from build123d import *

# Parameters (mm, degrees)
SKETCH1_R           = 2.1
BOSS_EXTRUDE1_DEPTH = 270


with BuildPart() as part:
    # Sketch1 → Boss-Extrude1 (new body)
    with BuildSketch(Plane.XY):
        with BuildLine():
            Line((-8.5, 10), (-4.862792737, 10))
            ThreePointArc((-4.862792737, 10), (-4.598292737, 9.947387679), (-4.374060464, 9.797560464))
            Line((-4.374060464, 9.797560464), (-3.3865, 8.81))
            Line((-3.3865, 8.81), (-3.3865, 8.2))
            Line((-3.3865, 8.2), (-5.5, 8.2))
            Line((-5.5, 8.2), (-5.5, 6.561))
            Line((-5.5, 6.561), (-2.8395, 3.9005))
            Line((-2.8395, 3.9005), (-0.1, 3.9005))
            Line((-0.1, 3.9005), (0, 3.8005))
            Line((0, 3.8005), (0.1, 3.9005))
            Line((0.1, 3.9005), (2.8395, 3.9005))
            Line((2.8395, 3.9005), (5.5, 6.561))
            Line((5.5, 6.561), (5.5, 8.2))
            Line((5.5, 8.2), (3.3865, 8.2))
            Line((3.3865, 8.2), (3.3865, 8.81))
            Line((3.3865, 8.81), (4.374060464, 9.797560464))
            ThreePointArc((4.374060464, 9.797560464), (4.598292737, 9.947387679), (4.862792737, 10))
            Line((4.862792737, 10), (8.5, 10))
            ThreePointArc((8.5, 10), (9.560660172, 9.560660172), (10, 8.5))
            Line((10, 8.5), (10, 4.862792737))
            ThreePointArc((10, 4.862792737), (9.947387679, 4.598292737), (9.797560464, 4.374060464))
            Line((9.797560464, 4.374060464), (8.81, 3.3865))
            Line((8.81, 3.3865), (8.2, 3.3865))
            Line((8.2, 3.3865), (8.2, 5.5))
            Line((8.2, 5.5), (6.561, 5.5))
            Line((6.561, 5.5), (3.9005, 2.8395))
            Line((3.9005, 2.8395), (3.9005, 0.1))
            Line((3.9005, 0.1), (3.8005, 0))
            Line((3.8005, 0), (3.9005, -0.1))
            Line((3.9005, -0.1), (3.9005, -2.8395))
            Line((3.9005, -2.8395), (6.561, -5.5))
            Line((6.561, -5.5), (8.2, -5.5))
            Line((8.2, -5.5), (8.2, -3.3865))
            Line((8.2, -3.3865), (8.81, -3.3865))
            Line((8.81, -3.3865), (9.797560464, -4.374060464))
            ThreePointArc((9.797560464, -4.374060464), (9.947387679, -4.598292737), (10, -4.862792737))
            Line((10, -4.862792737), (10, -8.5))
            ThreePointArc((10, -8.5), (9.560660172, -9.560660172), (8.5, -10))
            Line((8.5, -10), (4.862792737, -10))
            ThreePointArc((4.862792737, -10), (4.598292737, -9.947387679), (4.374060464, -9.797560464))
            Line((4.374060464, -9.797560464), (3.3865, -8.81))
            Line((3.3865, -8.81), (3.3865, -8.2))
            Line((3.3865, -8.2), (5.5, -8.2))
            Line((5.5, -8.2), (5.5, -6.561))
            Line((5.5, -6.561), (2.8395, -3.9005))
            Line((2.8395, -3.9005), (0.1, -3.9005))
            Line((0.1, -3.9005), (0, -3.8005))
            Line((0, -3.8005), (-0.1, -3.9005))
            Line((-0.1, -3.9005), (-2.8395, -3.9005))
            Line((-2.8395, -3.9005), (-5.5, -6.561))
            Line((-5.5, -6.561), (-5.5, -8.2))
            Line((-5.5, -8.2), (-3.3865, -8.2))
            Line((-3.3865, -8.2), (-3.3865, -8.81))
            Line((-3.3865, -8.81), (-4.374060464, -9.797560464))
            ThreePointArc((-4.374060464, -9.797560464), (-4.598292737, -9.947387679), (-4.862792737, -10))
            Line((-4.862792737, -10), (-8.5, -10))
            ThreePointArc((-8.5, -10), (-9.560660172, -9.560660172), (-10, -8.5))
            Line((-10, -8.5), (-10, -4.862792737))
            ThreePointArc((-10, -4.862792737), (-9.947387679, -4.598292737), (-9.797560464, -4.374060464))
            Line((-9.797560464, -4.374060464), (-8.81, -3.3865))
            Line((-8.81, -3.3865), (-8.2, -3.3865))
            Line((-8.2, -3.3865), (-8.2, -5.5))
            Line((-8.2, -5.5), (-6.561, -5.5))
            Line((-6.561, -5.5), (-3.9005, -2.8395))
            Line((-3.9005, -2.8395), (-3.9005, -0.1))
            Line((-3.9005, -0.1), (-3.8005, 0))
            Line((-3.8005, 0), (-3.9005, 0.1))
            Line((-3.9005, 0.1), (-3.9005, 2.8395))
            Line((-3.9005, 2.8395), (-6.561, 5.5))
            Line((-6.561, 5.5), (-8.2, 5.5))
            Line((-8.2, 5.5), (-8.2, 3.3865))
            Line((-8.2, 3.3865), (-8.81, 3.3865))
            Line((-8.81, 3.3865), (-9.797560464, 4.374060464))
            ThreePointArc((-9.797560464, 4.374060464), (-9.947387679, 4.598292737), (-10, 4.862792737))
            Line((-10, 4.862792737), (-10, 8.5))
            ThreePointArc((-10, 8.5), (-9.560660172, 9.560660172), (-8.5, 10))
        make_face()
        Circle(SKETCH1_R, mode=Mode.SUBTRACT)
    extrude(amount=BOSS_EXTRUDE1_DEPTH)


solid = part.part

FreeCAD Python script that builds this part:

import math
import FreeCAD as App
import Part
import Sketcher
from FreeCAD import Vector

doc = App.newDocument("Part")
params = doc.addObject("Spreadsheet::Sheet", "Params")
for row, (alias, value) in enumerate([
    ("sketch1_diameter", "4.2 mm"),
    ("sketch1_radius", "1.5 mm"),
    ("sketch1_width", "0.61 mm"),
    ("pad1_length", "270 mm"),
], start=1):
    params.set(f"A{row}", alias)
    params.set(f"B{row}", "=" + value)
    params.setAlias(f"B{row}", alias)

body = doc.addObject("PartDesign::Body", "Body")

# Sketch on XY plane
sketch1 = doc.addObject("Sketcher::SketchObject", "Sketch")
body.addObject(sketch1)
sketch1.AttachmentSupport = (doc.XY_Plane, [""])
sketch1.MapMode = "FlatFace"
sketch1.addGeometry([
    Part.LineSegment(Vector(-4.86, 10, 0), Vector(-8.5, 10, 0)),  # 0
    Part.ArcOfCircle(Part.Circle(Vector(-8.5, 8.5, 0), Vector(0, 0, 1), 1.5), math.radians(90), math.radians(180)),  # 1
    Part.LineSegment(Vector(-10, 8.5, 0), Vector(-10, 4.86, 0)),  # 2
    Part.ArcOfCircle(Part.Circle(Vector(-9.31, 4.86, 0), Vector(0, 0, 1), 0.69), math.radians(180), math.radians(225)),  # 3
    Part.LineSegment(Vector(-9.8, 4.37, 0), Vector(-8.81, 3.39, 0)),  # 4
    Part.LineSegment(Vector(-8.81, 3.39, 0), Vector(-8.2, 3.39, 0)),  # 5
    Part.LineSegment(Vector(-8.2, 3.39, 0), Vector(-8.2, 5.5, 0)),  # 6
    Part.LineSegment(Vector(-8.2, 5.5, 0), Vector(-6.56, 5.5, 0)),  # 7
    Part.LineSegment(Vector(-6.56, 5.5, 0), Vector(-3.9, 2.84, 0)),  # 8
    Part.LineSegment(Vector(-3.9, 2.84, 0), Vector(-3.9, 0.1, 0)),  # 9
    Part.LineSegment(Vector(-3.9, 0.1, 0), Vector(-3.8, 0, 0)),  # 10
    Part.LineSegment(Vector(-3.8, 0, 0), Vector(-3.9, -0.1, 0)),  # 11
    Part.LineSegment(Vector(-3.9, -0.1, 0), Vector(-3.9, -2.84, 0)),  # 12
    Part.LineSegment(Vector(-3.9, -2.84, 0), Vector(-6.56, -5.5, 0)),  # 13
    Part.LineSegment(Vector(-6.56, -5.5, 0), Vector(-8.2, -5.5, 0)),  # 14
    Part.LineSegment(Vector(-8.2, -5.5, 0), Vector(-8.2, -3.39, 0)),  # 15
    Part.LineSegment(Vector(-8.2, -3.39, 0), Vector(-8.81, -3.39, 0)),  # 16
    Part.LineSegment(Vector(-8.81, -3.39, 0), Vector(-9.8, -4.37, 0)),  # 17
    Part.ArcOfCircle(Part.Circle(Vector(-9.31, -4.86, 0), Vector(0, 0, 1), 0.69), math.radians(135), math.radians(180)),  # 18
    Part.LineSegment(Vector(-10, -4.86, 0), Vector(-10, -8.5, 0)),  # 19
    Part.ArcOfCircle(Part.Circle(Vector(-8.5, -8.5, 0), Vector(0, 0, 1), 1.5), math.radians(180), math.radians(270)),  # 20
    Part.LineSegment(Vector(-8.5, -10, 0), Vector(-4.86, -10, 0)),  # 21
    Part.ArcOfCircle(Part.Circle(Vector(-4.86, -9.31, 0), Vector(0, 0, 1), 0.69), math.radians(-90), math.radians(-45)),  # 22
    Part.LineSegment(Vector(-4.37, -9.8, 0), Vector(-3.39, -8.81, 0)),  # 23
    Part.LineSegment(Vector(-3.39, -8.81, 0), Vector(-3.39, -8.2, 0)),  # 24
    Part.LineSegment(Vector(-3.39, -8.2, 0), Vector(-5.5, -8.2, 0)),  # 25
    Part.LineSegment(Vector(-5.5, -8.2, 0), Vector(-5.5, -6.56, 0)),  # 26
    Part.LineSegment(Vector(-5.5, -6.56, 0), Vector(-2.84, -3.9, 0)),  # 27
    Part.LineSegment(Vector(-2.84, -3.9, 0), Vector(-0.1, -3.9, 0)),  # 28
    Part.LineSegment(Vector(-0.1, -3.9, 0), Vector(0, -3.8, 0)),  # 29
    Part.LineSegment(Vector(0, -3.8, 0), Vector(0.1, -3.9, 0)),  # 30
    Part.LineSegment(Vector(0.1, -3.9, 0), Vector(2.84, -3.9, 0)),  # 31
    Part.LineSegment(Vector(2.84, -3.9, 0), Vector(5.5, -6.56, 0)),  # 32
    Part.LineSegment(Vector(5.5, -6.56, 0), Vector(5.5, -8.2, 0)),  # 33
    Part.LineSegment(Vector(5.5, -8.2, 0), Vector(3.39, -8.2, 0)),  # 34
    Part.LineSegment(Vector(3.39, -8.2, 0), Vector(3.39, -8.81, 0)),  # 35
    Part.LineSegment(Vector(3.39, -8.81, 0), Vector(4.37, -9.8, 0)),  # 36
    Part.ArcOfCircle(Part.Circle(Vector(4.86, -9.31, 0), Vector(0, 0, 1), 0.69), math.radians(-135), math.radians(-90)),  # 37
    Part.LineSegment(Vector(4.86, -10, 0), Vector(8.5, -10, 0)),  # 38
    Part.ArcOfCircle(Part.Circle(Vector(8.5, -8.5, 0), Vector(0, 0, 1), 1.5), math.radians(-90), math.radians(0)),  # 39
    Part.LineSegment(Vector(10, -8.5, 0), Vector(10, -4.86, 0)),  # 40
    Part.ArcOfCircle(Part.Circle(Vector(9.31, -4.86, 0), Vector(0, 0, 1), 0.69), math.radians(0), math.radians(45)),  # 41
    Part.LineSegment(Vector(9.8, -4.37, 0), Vector(8.81, -3.39, 0)),  # 42
    Part.LineSegment(Vector(8.81, -3.39, 0), Vector(8.2, -3.39, 0)),  # 43
    Part.LineSegment(Vector(8.2, -3.39, 0), Vector(8.2, -5.5, 0)),  # 44
    Part.LineSegment(Vector(8.2, -5.5, 0), Vector(6.56, -5.5, 0)),  # 45
    Part.LineSegment(Vector(6.56, -5.5, 0), Vector(3.9, -2.84, 0)),  # 46
    Part.LineSegment(Vector(3.9, -2.84, 0), Vector(3.9, -0.1, 0)),  # 47
    Part.LineSegment(Vector(3.9, -0.1, 0), Vector(3.8, 0, 0)),  # 48
    Part.LineSegment(Vector(3.8, 0, 0), Vector(3.9, 0.1, 0)),  # 49
    Part.LineSegment(Vector(3.9, 0.1, 0), Vector(3.9, 2.84, 0)),  # 50
    Part.LineSegment(Vector(3.9, 2.84, 0), Vector(6.56, 5.5, 0)),  # 51
    Part.LineSegment(Vector(6.56, 5.5, 0), Vector(8.2, 5.5, 0)),  # 52
    Part.LineSegment(Vector(8.2, 5.5, 0), Vector(8.2, 3.39, 0)),  # 53
    Part.LineSegment(Vector(8.2, 3.39, 0), Vector(8.81, 3.39, 0)),  # 54
    Part.LineSegment(Vector(8.81, 3.39, 0), Vector(9.8, 4.37, 0)),  # 55
    Part.ArcOfCircle(Part.Circle(Vector(9.31, 4.86, 0), Vector(0, 0, 1), 0.69), math.radians(-45), math.radians(0)),  # 56
    Part.LineSegment(Vector(10, 4.86, 0), Vector(10, 8.5, 0)),  # 57
    Part.ArcOfCircle(Part.Circle(Vector(8.5, 8.5, 0), Vector(0, 0, 1), 1.5), math.radians(0), math.radians(90)),  # 58
    Part.LineSegment(Vector(8.5, 10, 0), Vector(4.86, 10, 0)),  # 59
    Part.ArcOfCircle(Part.Circle(Vector(4.86, 9.31, 0), Vector(0, 0, 1), 0.69), math.radians(90), math.radians(135)),  # 60
    Part.LineSegment(Vector(4.37, 9.8, 0), Vector(3.39, 8.81, 0)),  # 61
    Part.LineSegment(Vector(3.39, 8.81, 0), Vector(3.39, 8.2, 0)),  # 62
    Part.LineSegment(Vector(3.39, 8.2, 0), Vector(5.5, 8.2, 0)),  # 63
    Part.LineSegment(Vector(5.5, 8.2, 0), Vector(5.5, 6.56, 0)),  # 64
    Part.LineSegment(Vector(5.5, 6.56, 0), Vector(2.84, 3.9, 0)),  # 65
    Part.LineSegment(Vector(2.84, 3.9, 0), Vector(0.1, 3.9, 0)),  # 66
    Part.LineSegment(Vector(0.1, 3.9, 0), Vector(0, 3.8, 0)),  # 67
    Part.LineSegment(Vector(0, 3.8, 0), Vector(-0.1, 3.9, 0)),  # 68
    Part.LineSegment(Vector(-0.1, 3.9, 0), Vector(-2.84, 3.9, 0)),  # 69
    Part.LineSegment(Vector(-2.84, 3.9, 0), Vector(-5.5, 6.56, 0)),  # 70
    Part.LineSegment(Vector(-5.5, 6.56, 0), Vector(-5.5, 8.2, 0)),  # 71
    Part.LineSegment(Vector(-5.5, 8.2, 0), Vector(-3.39, 8.2, 0)),  # 72
    Part.LineSegment(Vector(-3.39, 8.2, 0), Vector(-3.39, 8.81, 0)),  # 73
    Part.LineSegment(Vector(-3.39, 8.81, 0), Vector(-4.37, 9.8, 0)),  # 74
    Part.ArcOfCircle(Part.Circle(Vector(-4.86, 9.31, 0), Vector(0, 0, 1), 0.69), math.radians(45), math.radians(90)),  # 75
    Part.Circle(Vector(0, 0, 0), Vector(0, 0, 1), 2.1),  # 76
], False)
sketch1.addConstraint([
    Sketcher.Constraint("Tangent", 0, 2, 1, 1),
    Sketcher.Constraint("Tangent", 1, 2, 2, 1),
    Sketcher.Constraint("Tangent", 2, 2, 3, 1),
    Sketcher.Constraint("Tangent", 3, 2, 4, 1),
    Sketcher.Constraint("Coincident", 4, 2, 5, 1),
    Sketcher.Constraint("Coincident", 5, 2, 6, 1),
    Sketcher.Constraint("Coincident", 6, 2, 7, 1),
    Sketcher.Constraint("Coincident", 7, 2, 8, 1),
    Sketcher.Constraint("Coincident", 8, 2, 9, 1),
    Sketcher.Constraint("Coincident", 9, 2, 10, 1),
    Sketcher.Constraint("Coincident", 10, 2, 11, 1),
    Sketcher.Constraint("Coincident", 11, 2, 12, 1),
    Sketcher.Constraint("Coincident", 12, 2, 13, 1),
    Sketcher.Constraint("Coincident", 13, 2, 14, 1),
    Sketcher.Constraint("Coincident", 14, 2, 15, 1),
    Sketcher.Constraint("Coincident", 15, 2, 16, 1),
    Sketcher.Constraint("Coincident", 16, 2, 17, 1),
    Sketcher.Constraint("Tangent", 17, 2, 18, 1),
    Sketcher.Constraint("Tangent", 18, 2, 19, 1),
    Sketcher.Constraint("Tangent", 19, 2, 20, 1),
    Sketcher.Constraint("Tangent", 20, 2, 21, 1),
    Sketcher.Constraint("Tangent", 21, 2, 22, 1),
    Sketcher.Constraint("Tangent", 22, 2, 23, 1),
    Sketcher.Constraint("Coincident", 23, 2, 24, 1),
    Sketcher.Constraint("Coincident", 24, 2, 25, 1),
    Sketcher.Constraint("Coincident", 25, 2, 26, 1),
    Sketcher.Constraint("Coincident", 26, 2, 27, 1),
    Sketcher.Constraint("Coincident", 27, 2, 28, 1),
    Sketcher.Constraint("Coincident", 28, 2, 29, 1),
    Sketcher.Constraint("Coincident", 29, 2, 30, 1),
    Sketcher.Constraint("Coincident", 30, 2, 31, 1),
    Sketcher.Constraint("Coincident", 31, 2, 32, 1),
    Sketcher.Constraint("Coincident", 32, 2, 33, 1),
    Sketcher.Constraint("Coincident", 33, 2, 34, 1),
    Sketcher.Constraint("Coincident", 34, 2, 35, 1),
    Sketcher.Constraint("Coincident", 35, 2, 36, 1),
    Sketcher.Constraint("Tangent", 36, 2, 37, 1),
    Sketcher.Constraint("Tangent", 37, 2, 38, 1),
    Sketcher.Constraint("Tangent", 38, 2, 39, 1),
    Sketcher.Constraint("Tangent", 39, 2, 40, 1),
    Sketcher.Constraint("Tangent", 40, 2, 41, 1),
    Sketcher.Constraint("Tangent", 41, 2, 42, 1),
    Sketcher.Constraint("Coincident", 42, 2, 43, 1),
    Sketcher.Constraint("Coincident", 43, 2, 44, 1),
    Sketcher.Constraint("Coincident", 44, 2, 45, 1),
    Sketcher.Constraint("Coincident", 45, 2, 46, 1),
    Sketcher.Constraint("Coincident", 46, 2, 47, 1),
    Sketcher.Constraint("Coincident", 47, 2, 48, 1),
    Sketcher.Constraint("Coincident", 48, 2, 49, 1),
    Sketcher.Constraint("Coincident", 49, 2, 50, 1),
    Sketcher.Constraint("Coincident", 50, 2, 51, 1),
    Sketcher.Constraint("Coincident", 51, 2, 52, 1),
    Sketcher.Constraint("Coincident", 52, 2, 53, 1),
    Sketcher.Constraint("Coincident", 53, 2, 54, 1),
    Sketcher.Constraint("Coincident", 54, 2, 55, 1),
    Sketcher.Constraint("Tangent", 55, 2, 56, 1),
    Sketcher.Constraint("Tangent", 56, 2, 57, 1),
    Sketcher.Constraint("Tangent", 57, 2, 58, 1),
    Sketcher.Constraint("Tangent", 58, 2, 59, 1),
    Sketcher.Constraint("Tangent", 59, 2, 60, 1),
    Sketcher.Constraint("Tangent", 60, 2, 61, 1),
    Sketcher.Constraint("Coincident", 61, 2, 62, 1),
    Sketcher.Constraint("Coincident", 62, 2, 63, 1),
    Sketcher.Constraint("Coincident", 63, 2, 64, 1),
    Sketcher.Constraint("Coincident", 64, 2, 65, 1),
    Sketcher.Constraint("Coincident", 65, 2, 66, 1),
    Sketcher.Constraint("Coincident", 66, 2, 67, 1),
    Sketcher.Constraint("Coincident", 67, 2, 68, 1),
    Sketcher.Constraint("Coincident", 68, 2, 69, 1),
    Sketcher.Constraint("Coincident", 69, 2, 70, 1),
    Sketcher.Constraint("Coincident", 70, 2, 71, 1),
    Sketcher.Constraint("Coincident", 71, 2, 72, 1),
    Sketcher.Constraint("Coincident", 72, 2, 73, 1),
    Sketcher.Constraint("Coincident", 73, 2, 74, 1),
    Sketcher.Constraint("Tangent", 74, 2, 75, 1),
    Sketcher.Constraint("Tangent", 75, 2, 0, 1),
    Sketcher.Constraint("Horizontal", 0),
    Sketcher.Constraint("Vertical", 2),
    Sketcher.Constraint("Horizontal", 5),
    Sketcher.Constraint("Vertical", 6),
    Sketcher.Constraint("Horizontal", 7),
    Sketcher.Constraint("Vertical", 9),
    Sketcher.Constraint("Vertical", 12),
    Sketcher.Constraint("Horizontal", 14),
    Sketcher.Constraint("Vertical", 15),
    Sketcher.Constraint("Horizontal", 16),
    Sketcher.Constraint("Vertical", 19),
    Sketcher.Constraint("Horizontal", 21),
    Sketcher.Constraint("Vertical", 24),
    Sketcher.Constraint("Horizontal", 25),
    Sketcher.Constraint("Vertical", 26),
    Sketcher.Constraint("Horizontal", 28),
    Sketcher.Constraint("Horizontal", 31),
    Sketcher.Constraint("Vertical", 33),
    Sketcher.Constraint("Horizontal", 34),
    Sketcher.Constraint("Vertical", 35),
    Sketcher.Constraint("Horizontal", 38),
    Sketcher.Constraint("Vertical", 40),
    Sketcher.Constraint("Horizontal", 43),
    Sketcher.Constraint("Vertical", 44),
    Sketcher.Constraint("Horizontal", 45),
    Sketcher.Constraint("Vertical", 47),
    Sketcher.Constraint("Vertical", 50),
    Sketcher.Constraint("Horizontal", 52),
    Sketcher.Constraint("Vertical", 53),
    Sketcher.Constraint("Horizontal", 54),
    Sketcher.Constraint("Vertical", 57),
    Sketcher.Constraint("Horizontal", 59),
    Sketcher.Constraint("Vertical", 62),
    Sketcher.Constraint("Horizontal", 63),
    Sketcher.Constraint("Vertical", 64),
    Sketcher.Constraint("Horizontal", 66),
    Sketcher.Constraint("Horizontal", 69),
    Sketcher.Constraint("Vertical", 71),
    Sketcher.Constraint("Horizontal", 72),
    Sketcher.Constraint("Vertical", 73),
    Sketcher.Constraint("Coincident", 76, 3, -1, 1),
    Sketcher.Constraint("Equal", 3, 18),
    Sketcher.Constraint("Equal", 1, 20),
    Sketcher.Constraint("Equal", 18, 22),
    Sketcher.Constraint("Equal", 22, 37),
    Sketcher.Constraint("Equal", 20, 39),
    Sketcher.Constraint("Equal", 37, 41),
    Sketcher.Constraint("Equal", 41, 56),
    Sketcher.Constraint("Equal", 39, 58),
    Sketcher.Constraint("Equal", 56, 60),
    Sketcher.Constraint("Equal", 60, 75),
    Sketcher.Constraint("Symmetric", 1, 3, 39, 3, -1, 1),
    Sketcher.Constraint("Symmetric", 18, 3, 56, 3, -1, 1),
    Sketcher.Constraint("Symmetric", 22, 3, 60, 3, -1, 1),
    Sketcher.Constraint("Symmetric", 3, 2, 41, 2, -1, 1),
    Sketcher.Constraint("Symmetric", 5, 2, 43, 2, -1, 1),
    Sketcher.Constraint("Symmetric", 7, 2, 45, 2, -1, 1),
    Sketcher.Constraint("Symmetric", 8, 2, 46, 2, -1, 1),
    Sketcher.Constraint("Symmetric", 10, 2, 48, 2, -1, 1),
    Sketcher.Constraint("Symmetric", 11, 2, 49, 2, -1, 1),
    Sketcher.Constraint("Symmetric", 13, 2, 51, 2, -1, 1),
    Sketcher.Constraint("Symmetric", 15, 2, 53, 2, -1, 1),
    Sketcher.Constraint("Symmetric", 23, 2, 61, 2, -1, 1),
    Sketcher.Constraint("Symmetric", 25, 2, 63, 2, -1, 1),
    Sketcher.Constraint("Symmetric", 27, 2, 65, 2, -1, 1),
    Sketcher.Constraint("Symmetric", 29, 2, 67, 2, -1, 1),
    Sketcher.Constraint("Symmetric", 30, 2, 68, 2, -1, 1),
    Sketcher.Constraint("Symmetric", 32, 2, 70, 2, -1, 1),
    Sketcher.Constraint("Symmetric", 34, 2, 72, 2, -1, 1),
    Sketcher.Constraint("Symmetric", 36, 2, 74, 2, -1, 1),
    Sketcher.Constraint("Symmetric", 22, 3, 37, 3, -2),
    Sketcher.Constraint("Symmetric", 18, 3, 41, 3, -2),
    Sketcher.Constraint("Symmetric", 28, 2, 30, 2, -2),
    Sketcher.Constraint("Symmetric", 26, 2, 32, 2, -2),
    Sketcher.Constraint("Symmetric", 24, 2, 34, 2, -2),
    Sketcher.Constraint("Symmetric", 16, 2, 42, 2, -2),
    Sketcher.Constraint("Symmetric", 14, 2, 44, 2, -2),
    Sketcher.Constraint("Symmetric", 12, 2, 46, 2, -2),
    Sketcher.Constraint("PointOnObject", 10, 2, -1),
    Sketcher.Constraint("PointOnObject", 29, 2, -2),
    Sketcher.Constraint("Parallel", 4, 8),
    Sketcher.Constraint("Parallel", 8, 10),
    Sketcher.Constraint("Perpendicular", 10, 11),
    Sketcher.Constraint("Parallel", 11, 13),
    Sketcher.Constraint("Parallel", 13, 17),
    Sketcher.Constraint("Parallel", 17, 23),
    Sketcher.Constraint("Parallel", 23, 27),
    Sketcher.Constraint("Parallel", 27, 29),
    Sketcher.Constraint("Parallel", 30, 32),
    Sketcher.Constraint("Parallel", 32, 36),
    Sketcher.Constraint("Parallel", 46, 48),
    Sketcher.Constraint("Parallel", 49, 51),
    Sketcher.Constraint("Parallel", 51, 55),
    Sketcher.Constraint("Parallel", 61, 65),
    Sketcher.Constraint("Parallel", 65, 67),
    Sketcher.Constraint("Parallel", 68, 70),
    Sketcher.Constraint("Equal", 59, 2),
    Sketcher.Constraint("Equal", 72, 6),
    Sketcher.Constraint("Equal", 69, 9),
    Sketcher.Constraint("Equal", 54, 24),
    Sketcher.Constraint("Equal", 52, 26),
    Sketcher.Constraint("Equal", 17, 23),
    Sketcher.Constraint("Equal", 13, 27),
    Sketcher.Constraint("Equal", 11, 29),
    Sketcher.Constraint("Diameter", 76, 4.2),
    Sketcher.Constraint("Radius", 1, 1.5),
    Sketcher.Constraint("DistanceY", -1, 1, 0, 2, 10.0),
    Sketcher.Constraint("DistanceX", 5, 1, 5, 2, 0.61),
    Sketcher.Constraint("DistanceX", 5, 2, -1, 1, 8.2),
    Sketcher.Constraint("DistanceY", -1, 1, 6, 2, 5.5),
    Sketcher.Constraint("DistanceY", -1, 1, 9, 2, 0.1),
    Sketcher.Constraint("DistanceX", 7, 1, 7, 2, 1.639),
    Sketcher.Constraint("Radius", 3, 0.691172),
    Sketcher.Constraint("DistanceX", 25, 2, 25, 1, 2.1135),
    Sketcher.Constraint("DistanceX", 28, 1, 28, 2, 2.7395),
])
sketch1.setExpression("Constraints[180]", "Params.sketch1_diameter")
sketch1.setExpression("Constraints[181]", "Params.sketch1_radius")
sketch1.setExpression("Constraints[183]", "Params.sketch1_width")
pad1 = doc.addObject("PartDesign::Pad", "Pad")
body.addObject(pad1)
pad1.Profile = sketch1
pad1.setExpression("Length", "Params.pad1_length")

doc.recompute()
